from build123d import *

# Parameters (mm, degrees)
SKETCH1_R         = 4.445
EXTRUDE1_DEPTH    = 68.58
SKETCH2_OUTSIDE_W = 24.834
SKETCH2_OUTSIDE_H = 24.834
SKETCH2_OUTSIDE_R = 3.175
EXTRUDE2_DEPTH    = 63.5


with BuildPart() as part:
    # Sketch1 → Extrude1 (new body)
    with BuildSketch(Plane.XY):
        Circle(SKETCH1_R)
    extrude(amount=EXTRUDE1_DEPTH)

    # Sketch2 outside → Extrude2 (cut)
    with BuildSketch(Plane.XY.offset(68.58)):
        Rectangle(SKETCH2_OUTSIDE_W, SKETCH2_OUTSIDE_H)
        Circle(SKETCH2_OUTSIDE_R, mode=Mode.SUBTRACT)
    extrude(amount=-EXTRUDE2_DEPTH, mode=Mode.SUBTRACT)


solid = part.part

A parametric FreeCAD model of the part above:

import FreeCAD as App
import Part
import Sketcher
Q = App.Units.Quantity


def add_polygon(sketch, points):
    """Adds a closed chain of lines whose ends are joined by coincident constraints."""
    first, n = sketch.GeometryCount, len(points)
    for a, b in zip(points, points[1:] + points[:1]):
        sketch.addGeometry(Part.LineSegment(App.Vector(*a, 0), App.Vector(*b, 0)), False)
    for i in range(n):
        sketch.addConstraint(Sketcher.Constraint("Coincident", first + i, 2, first + (i + 1) % n, 1))

doc = App.newDocument("Part")
params = doc.addObject("Spreadsheet::Sheet", "Params")
for row, (alias, value) in enumerate([
    ("sketch1_diameter", "0.35 in"),
    ("pad1_length", "2.7 in"),
    ("sketch2_diameter", "0.25 in"),
    ("pocket1_length", "2.5 in"),
], start=1):
    params.set(f"A{row}", alias)
    params.set(f"B{row}", "=" + value)
    params.setAlias(f"B{row}", alias)

body = doc.addObject("PartDesign::Body", "Body")

# Sketch on XY plane
sketch1 = body.newObject("Sketcher::SketchObject", "Sketch")
sketch1.AttachmentSupport = (doc.getObject("XY_Plane"), [""])
sketch1.MapMode = "FlatFace"
sketch1.addGeometry(Part.Circle(App.Vector(0, 0, 0), App.Vector(0, 0, 1), 4.4), False)
sketch1.addConstraint(Sketcher.Constraint("Coincident", 0, 3, -1, 1))
sketch1.addConstraint(Sketcher.Constraint("Diameter", 0, Q("0.35 in")))
sketch1.setExpression("Constraints[1]", "Params.sketch1_diameter")
pad1 = body.newObject("PartDesign::Pad", "Pad")
pad1.Profile = sketch1
pad1.setExpression("Length", "Params.pad1_length")

# Sketch on XY plane
sketch2 = body.newObject("Sketcher::SketchObject", "Sketch001")
sketch2.AttachmentSupport = (doc.getObject("XY_Plane"), [""])
sketch2.MapMode = "FlatFace"
sketch2.AttachmentOffset = App.Placement(App.Vector(0, 0, 2.7 * 25.4), App.Rotation())
add_polygon(sketch2, [(-12.4, 12.4), (-12.4, -12.4), (12.4, -12.4), (12.4, 12.4)])  # lines 0-3
sketch2.addGeometry(Part.Circle(App.Vector(0, 0, 0), App.Vector(0, 0, 1), 3.2), False)  # 4
sketch2.addConstraint(Sketcher.Constraint("Vertical", 0))
sketch2.addConstraint(Sketcher.Constraint("Horizontal", 1))
sketch2.addConstraint(Sketcher.Constraint("Vertical", 2))
sketch2.addConstraint(Sketcher.Constraint("Horizontal", 3))
sketch2.addConstraint(Sketcher.Constraint("Coincident", 4, 3, -1, 1))
sketch2.addConstraint(Sketcher.Constraint("Symmetric", 0, 2, 2, 2, -1, 1))
sketch2.addConstraint(Sketcher.Constraint("Equal", 3, 0))
sketch2.addConstraint(Sketcher.Constraint("Diameter", 4, Q("0.25 in")))
sketch2.addConstraint(Sketcher.Constraint("DistanceX", 1, 1, 1, 2, Q("24.834 mm")))
sketch2.setExpression("Constraints[11]", "Params.sketch2_diameter")
pocket1 = body.newObject("PartDesign::Pocket", "Pocket")
pocket1.Profile = sketch2
pocket1.setExpression("Length", "Params.pocket1_length")

doc.recompute()
